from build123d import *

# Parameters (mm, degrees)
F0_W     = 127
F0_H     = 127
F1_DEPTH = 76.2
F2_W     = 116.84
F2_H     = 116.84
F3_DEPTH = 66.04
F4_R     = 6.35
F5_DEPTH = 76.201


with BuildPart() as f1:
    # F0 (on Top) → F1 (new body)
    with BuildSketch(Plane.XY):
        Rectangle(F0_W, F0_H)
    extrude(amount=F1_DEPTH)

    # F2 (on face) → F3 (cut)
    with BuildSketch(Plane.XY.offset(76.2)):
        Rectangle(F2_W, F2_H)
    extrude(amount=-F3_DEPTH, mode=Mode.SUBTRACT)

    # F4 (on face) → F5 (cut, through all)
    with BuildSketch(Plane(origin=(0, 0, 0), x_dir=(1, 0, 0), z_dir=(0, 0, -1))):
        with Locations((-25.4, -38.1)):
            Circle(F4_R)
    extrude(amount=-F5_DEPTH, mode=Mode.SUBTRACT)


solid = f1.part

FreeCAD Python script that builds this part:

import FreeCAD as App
import Part
import Sketcher

V = App.Vector
Q = App.Units.Quantity


def add_polygon(sketch, points):
    """Adds a closed chain of lines whose ends are joined by coincident constraints."""
    first, n = sketch.GeometryCount, len(points)
    for a, b in zip(points, points[1:] + points[:1]):
        sketch.addGeometry(Part.LineSegment(App.Vector(*a, 0), App.Vector(*b, 0)), False)
    for i in range(n):
        sketch.addConstraint(Sketcher.Constraint("Coincident", first + i, 2, first + (i + 1) % n, 1))

doc = App.newDocument("Part")
body = doc.addObject("PartDesign::Body", "Body")

# Sketch on XY plane
sketch1 = doc.addObject("Sketcher::SketchObject", "Sketch")
body.addObject(sketch1)
sketch1.AttachmentSupport = (doc.XY_Plane, [""])
sketch1.MapMode = "FlatFace"
add_polygon(sketch1, [(-64, 64), (-64, -64), (64, -64), (64, 64)])  # lines 0-3
sketch1.addConstraint(Sketcher.Constraint("Vertical", 0))
sketch1.addConstraint(Sketcher.Constraint("Horizontal", 1))
sketch1.addConstraint(Sketcher.Constraint("Vertical", 2))
sketch1.addConstraint(Sketcher.Constraint("Horizontal", 3))
sketch1.addConstraint(Sketcher.Constraint("Symmetric", 0, 2, 2, 2, -1, 1))
sketch1.addConstraint(Sketcher.Constraint("Equal", 3, 0))
sketch1.addConstraint(Sketcher.Constraint("DistanceX", 1, 1, 1, 2, Q("5 in")))
pad1 = doc.addObject("PartDesign::Pad", "Pad")
body.addObject(pad1)
pad1.Profile = sketch1
pad1.Length = Q("3 in")

# Sketch on XY plane
sketch2 = doc.addObject("Sketcher::SketchObject", "Sketch001")
body.addObject(sketch2)
sketch2.AttachmentSupport = (doc.XY_Plane, [""])
sketch2.MapMode = "FlatFace"
sketch2.AttachmentOffset = App.Placement(V(0, 0, 3 * 25.4), App.Rotation())
add_polygon(sketch2, [(-58, 58), (-58, -58), (58, -58), (58, 58)])  # lines 0-3
sketch2.addConstraint(Sketcher.Constraint("Vertical", 0))
sketch2.addConstraint(Sketcher.Constraint("Horizontal", 1))
sketch2.addConstraint(Sketcher.Constraint("Vertical", 2))
sketch2.addConstraint(Sketcher.Constraint("Horizontal", 3))
sketch2.addConstraint(Sketcher.Constraint("Symmetric", 0, 2, 2, 2, -1, 1))
sketch2.addConstraint(Sketcher.Constraint("Equal", 3, 0))
sketch2.addConstraint(Sketcher.Constraint("DistanceX", 1, 1, 1, 2, Q("4.6 in")))
pocket1 = doc.addObject("PartDesign::Pocket", "Pocket")
body.addObject(pocket1)
pocket1.Profile = sketch2
pocket1.Length = Q("2.6 in")

# Sketch on XY plane
sketch3 = doc.addObject("Sketcher::SketchObject", "Sketch002")
body.addObject(sketch3)
sketch3.AttachmentSupport = (doc.XY_Plane, [""])
sketch3.MapMode = "FlatFace"
sketch3.addGeometry(Part.Circle(V(-25, 38, 0), V(0, 0, 1), 6), False)
sketch3.addConstraint(Sketcher.Constraint("Diameter", 0, Q("0.5 in")))
sketch3.addConstraint(Sketcher.Constraint("DistanceX", 0, 3, -1, 1, Q("1 in")))
sketch3.addConstraint(Sketcher.Constraint("DistanceY", -1, 1, 0, 3, Q("1.5 in")))
pocket2 = doc.addObject("PartDesign::Pocket", "Pocket001")
body.addObject(pocket2)
pocket2.Profile = sketch3
pocket2.Type = "ThroughAll"
pocket2.Reversed = True

doc.recompute()
